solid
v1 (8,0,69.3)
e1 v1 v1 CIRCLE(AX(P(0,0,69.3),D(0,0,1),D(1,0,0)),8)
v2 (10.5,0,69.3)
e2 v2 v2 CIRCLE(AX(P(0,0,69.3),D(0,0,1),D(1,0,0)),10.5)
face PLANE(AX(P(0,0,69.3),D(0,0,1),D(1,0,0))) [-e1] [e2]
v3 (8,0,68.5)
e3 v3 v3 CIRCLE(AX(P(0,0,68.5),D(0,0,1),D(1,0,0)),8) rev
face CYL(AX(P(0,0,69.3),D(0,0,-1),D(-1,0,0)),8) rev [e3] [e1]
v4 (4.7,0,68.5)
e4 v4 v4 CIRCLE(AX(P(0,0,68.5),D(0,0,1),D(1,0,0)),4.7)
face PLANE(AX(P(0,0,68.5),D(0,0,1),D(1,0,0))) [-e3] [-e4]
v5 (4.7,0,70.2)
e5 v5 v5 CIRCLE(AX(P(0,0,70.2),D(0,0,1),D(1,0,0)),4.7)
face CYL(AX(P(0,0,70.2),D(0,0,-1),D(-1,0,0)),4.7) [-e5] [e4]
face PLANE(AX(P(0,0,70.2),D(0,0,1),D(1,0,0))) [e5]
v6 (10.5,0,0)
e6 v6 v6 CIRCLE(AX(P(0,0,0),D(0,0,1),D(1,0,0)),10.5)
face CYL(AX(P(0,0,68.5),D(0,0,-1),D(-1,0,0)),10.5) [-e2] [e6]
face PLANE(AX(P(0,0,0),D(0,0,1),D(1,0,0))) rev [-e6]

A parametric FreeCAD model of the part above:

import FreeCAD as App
import Part
import Sketcher

V = App.Vector
Q = App.Units.Quantity

doc = App.newDocument("Part")
body = doc.addObject("PartDesign::Body", "Body")

# Sketch on XY plane
sketch1 = body.newObject("Sketcher::SketchObject", "Sketch")
sketch1.AttachmentSupport = (doc.getObject("XY_Plane"), [""])
sketch1.MapMode = "FlatFace"
sketch1.addGeometry(Part.Circle(V(0, 0, 0), V(0, 0, 1), 10), False)
sketch1.addConstraint([
    Sketcher.Constraint("Coincident", 0, 3, -1, 1),
    Sketcher.Constraint("Diameter", 0, Q("21 mm")),
])
pad1 = body.newObject("PartDesign::Pad", "Pad")
pad1.Profile = sketch1
pad1.Length = 68.5

# Sketch on XY plane
sketch2 = body.newObject("Sketcher::SketchObject", "Sketch001")
sketch2.AttachmentSupport = (doc.getObject("XY_Plane"), [""])
sketch2.MapMode = "FlatFace"
sketch2.AttachmentOffset = App.Placement(V(0, 0, 68.5), App.Rotation())
sketch2.addGeometry(Part.Circle(V(0, 0, 0), V(0, 0, 1), 4.7), False)
sketch2.addConstraint([
    Sketcher.Constraint("Coincident", 0, 3, -1, 1),
    Sketcher.Constraint("Diameter", 0, Q("9.4 mm")),
])
pad2 = body.newObject("PartDesign::Pad", "Pad001")
pad2.Profile = sketch2
pad2.Length = 1.7

# Sketch on XY plane
sketch3 = body.newObject("Sketcher::SketchObject", "Sketch002")
sketch3.AttachmentSupport = (doc.getObject("XY_Plane"), [""])
sketch3.MapMode = "FlatFace"
sketch3.AttachmentOffset = App.Placement(V(0, 0, 68.5), App.Rotation())
sketch3.addGeometry([
    Part.Circle(V(0, 0, 0), V(0, 0, 1), 10),
    Part.Circle(V(0, 0, 0), V(0, 0, 1), 8),
], False)
sketch3.addConstraint([
    Sketcher.Constraint("Coincident", 0, 3, -1, 1),
    Sketcher.Constraint("Coincident", 1, 3, -1, 1),
    Sketcher.Constraint("Diameter", 0, Q("21 mm")),
    Sketcher.Constraint("Diameter", 1, Q("16 mm")),
])
pad3 = body.newObject("PartDesign::Pad", "Pad002")
pad3.Profile = sketch3
pad3.Length = 0.8

doc.recompute()
